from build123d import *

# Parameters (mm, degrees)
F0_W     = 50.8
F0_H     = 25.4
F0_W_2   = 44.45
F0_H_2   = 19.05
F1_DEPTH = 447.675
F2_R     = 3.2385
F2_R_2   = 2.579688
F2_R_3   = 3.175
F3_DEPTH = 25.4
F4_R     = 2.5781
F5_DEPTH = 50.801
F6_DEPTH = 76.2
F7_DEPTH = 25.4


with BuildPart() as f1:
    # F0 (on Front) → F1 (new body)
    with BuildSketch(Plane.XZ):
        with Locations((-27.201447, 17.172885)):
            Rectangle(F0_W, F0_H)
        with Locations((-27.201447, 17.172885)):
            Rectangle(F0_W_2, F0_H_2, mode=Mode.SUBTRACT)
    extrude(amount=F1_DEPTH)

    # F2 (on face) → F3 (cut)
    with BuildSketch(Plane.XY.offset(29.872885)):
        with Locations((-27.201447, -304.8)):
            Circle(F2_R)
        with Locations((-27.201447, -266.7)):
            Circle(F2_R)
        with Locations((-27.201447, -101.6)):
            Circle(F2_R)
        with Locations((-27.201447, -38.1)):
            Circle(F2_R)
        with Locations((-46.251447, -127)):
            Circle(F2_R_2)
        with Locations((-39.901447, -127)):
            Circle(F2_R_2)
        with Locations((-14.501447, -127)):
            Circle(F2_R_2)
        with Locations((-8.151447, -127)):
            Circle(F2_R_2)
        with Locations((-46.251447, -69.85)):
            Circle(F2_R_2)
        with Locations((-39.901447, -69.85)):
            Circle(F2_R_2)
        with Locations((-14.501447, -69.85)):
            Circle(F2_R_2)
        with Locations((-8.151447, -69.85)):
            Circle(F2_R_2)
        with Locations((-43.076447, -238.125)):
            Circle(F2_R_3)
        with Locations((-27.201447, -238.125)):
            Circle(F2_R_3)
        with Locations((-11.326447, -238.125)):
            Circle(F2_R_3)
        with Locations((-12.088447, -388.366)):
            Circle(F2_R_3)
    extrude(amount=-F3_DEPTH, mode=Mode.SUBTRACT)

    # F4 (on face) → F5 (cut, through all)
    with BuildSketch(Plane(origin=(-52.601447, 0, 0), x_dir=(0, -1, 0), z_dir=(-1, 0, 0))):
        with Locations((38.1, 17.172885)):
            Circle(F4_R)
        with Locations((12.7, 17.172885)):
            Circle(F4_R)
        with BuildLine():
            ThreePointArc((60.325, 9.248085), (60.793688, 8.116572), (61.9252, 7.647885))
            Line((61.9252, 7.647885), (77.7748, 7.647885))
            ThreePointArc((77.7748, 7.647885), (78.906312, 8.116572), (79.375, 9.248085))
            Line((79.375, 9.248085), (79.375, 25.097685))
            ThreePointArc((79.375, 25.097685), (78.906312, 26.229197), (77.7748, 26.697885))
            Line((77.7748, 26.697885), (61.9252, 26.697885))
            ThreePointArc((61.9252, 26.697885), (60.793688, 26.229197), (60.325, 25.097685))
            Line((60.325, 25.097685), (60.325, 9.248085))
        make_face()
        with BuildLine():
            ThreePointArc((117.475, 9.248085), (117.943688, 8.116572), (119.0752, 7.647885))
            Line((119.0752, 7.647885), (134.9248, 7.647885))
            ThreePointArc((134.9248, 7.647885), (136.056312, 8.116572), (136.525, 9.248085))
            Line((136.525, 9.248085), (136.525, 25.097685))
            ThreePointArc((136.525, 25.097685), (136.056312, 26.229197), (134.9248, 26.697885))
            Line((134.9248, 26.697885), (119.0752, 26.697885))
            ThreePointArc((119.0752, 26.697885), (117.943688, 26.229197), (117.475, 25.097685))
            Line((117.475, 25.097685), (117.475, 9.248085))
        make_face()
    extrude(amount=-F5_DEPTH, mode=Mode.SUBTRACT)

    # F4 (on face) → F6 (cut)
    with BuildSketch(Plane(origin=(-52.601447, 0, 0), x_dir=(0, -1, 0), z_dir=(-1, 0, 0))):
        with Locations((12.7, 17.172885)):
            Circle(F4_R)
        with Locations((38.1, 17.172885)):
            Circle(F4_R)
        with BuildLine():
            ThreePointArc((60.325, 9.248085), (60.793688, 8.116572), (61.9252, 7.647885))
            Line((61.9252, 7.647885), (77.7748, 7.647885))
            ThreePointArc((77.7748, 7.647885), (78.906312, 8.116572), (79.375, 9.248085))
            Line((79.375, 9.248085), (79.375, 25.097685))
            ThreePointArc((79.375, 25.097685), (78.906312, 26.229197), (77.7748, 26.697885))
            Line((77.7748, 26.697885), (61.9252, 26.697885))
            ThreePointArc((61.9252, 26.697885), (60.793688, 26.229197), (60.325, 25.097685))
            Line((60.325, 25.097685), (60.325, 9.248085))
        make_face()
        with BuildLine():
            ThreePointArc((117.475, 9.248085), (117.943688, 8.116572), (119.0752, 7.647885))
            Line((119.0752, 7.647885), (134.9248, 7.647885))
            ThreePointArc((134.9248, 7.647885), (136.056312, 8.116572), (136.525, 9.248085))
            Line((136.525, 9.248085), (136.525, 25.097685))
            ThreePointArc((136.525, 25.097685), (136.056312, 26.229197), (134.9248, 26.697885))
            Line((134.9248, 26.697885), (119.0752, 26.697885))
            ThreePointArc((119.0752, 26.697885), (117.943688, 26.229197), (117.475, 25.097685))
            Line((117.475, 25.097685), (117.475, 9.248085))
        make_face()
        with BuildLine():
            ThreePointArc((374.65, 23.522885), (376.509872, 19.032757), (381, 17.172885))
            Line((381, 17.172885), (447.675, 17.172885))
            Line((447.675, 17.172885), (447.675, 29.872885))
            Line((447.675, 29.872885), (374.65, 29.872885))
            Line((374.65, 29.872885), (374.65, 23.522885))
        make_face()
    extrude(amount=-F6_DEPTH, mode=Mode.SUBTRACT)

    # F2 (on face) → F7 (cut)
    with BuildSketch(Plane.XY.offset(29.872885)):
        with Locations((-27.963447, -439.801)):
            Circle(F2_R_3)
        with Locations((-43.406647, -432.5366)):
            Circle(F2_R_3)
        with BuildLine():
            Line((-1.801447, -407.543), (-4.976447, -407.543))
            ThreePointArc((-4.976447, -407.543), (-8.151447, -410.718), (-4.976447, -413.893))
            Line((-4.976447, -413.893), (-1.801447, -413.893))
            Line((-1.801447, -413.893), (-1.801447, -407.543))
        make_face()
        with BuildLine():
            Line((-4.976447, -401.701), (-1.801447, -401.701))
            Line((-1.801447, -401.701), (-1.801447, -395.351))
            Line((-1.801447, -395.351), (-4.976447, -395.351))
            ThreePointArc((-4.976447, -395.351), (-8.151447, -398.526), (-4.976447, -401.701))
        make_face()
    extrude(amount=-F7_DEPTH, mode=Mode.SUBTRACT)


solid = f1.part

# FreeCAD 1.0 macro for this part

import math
import FreeCAD as App
import Part
import Sketcher
Q = App.Units.Quantity

doc = App.newDocument("Part")
params = doc.addObject("Spreadsheet::Sheet", "Params")
for row, (alias, value) in enumerate([
    ("sketch1_width", "2 in"),
    ("sketch1_height", "1 in"),
    ("sketch1_width2", "1.75 in"),
    ("sketch1_height2", "0.75 in"),
    ("pad1_length", "17.625 in"),
    ("sketch2_diameter", "0.25 in"),
    ("sketch2_diameter2", "0.255 in"),
    ("sketch2_diameter3", "0.203125 in"),
    ("pocket1_length", "1 in"),
    ("sketch3_diameter", "0.203 in"),
    ("sketch3_radius", "0.063 in"),
    ("sketch3_width", "0.624 in"),
    ("sketch4_radius", "0.25 in"),
    ("sketch4_diameter", "0.203 in"),
    ("sketch4_height", "0.5 in"),
    ("sketch4_radius2", "0.063 in"),
    ("sketch4_width", "0.624 in"),
    ("pocket3_length", "3 in"),
    ("sketch5_diameter", "0.25 in"),
    ("sketch5_width", "0.125 in"),
    ("pocket4_length", "1 in"),
], start=1):
    params.set(f"A{row}", alias)
    params.set(f"B{row}", "=" + value)
    params.setAlias(f"B{row}", alias)

body = doc.addObject("PartDesign::Body", "Body")

# Sketch on XZ plane
sketch1 = body.newObject("Sketcher::SketchObject", "Sketch")
sketch1.AttachmentSupport = (doc.getObject("XZ_Plane"), [""])
sketch1.MapMode = "FlatFace"
sketch1.addGeometry(Part.LineSegment(App.Vector(-53, 30, 0), App.Vector(-53, 4, 0)), False)
sketch1.addGeometry(Part.LineSegment(App.Vector(-53, 4, 0), App.Vector(-2, 4, 0)), False)
sketch1.addGeometry(Part.LineSegment(App.Vector(-2, 4, 0), App.Vector(-2, 30, 0)), False)
sketch1.addGeometry(Part.LineSegment(App.Vector(-2, 30, 0), App.Vector(-53, 30, 0)), False)
sketch1.addGeometry(Part.LineSegment(App.Vector(-5, 8, 0), App.Vector(-49, 8, 0)), False)
sketch1.addGeometry(Part.LineSegment(App.Vector(-49, 8, 0), App.Vector(-49, 27, 0)), False)
sketch1.addGeometry(Part.LineSegment(App.Vector(-49, 27, 0), App.Vector(-5, 27, 0)), False)
sketch1.addGeometry(Part.LineSegment(App.Vector(-5, 27, 0), App.Vector(-5, 8, 0)), False)
sketch1.addConstraint(Sketcher.Constraint("Coincident", 0, 2, 1, 1))
sketch1.addConstraint(Sketcher.Constraint("Coincident", 1, 2, 2, 1))
sketch1.addConstraint(Sketcher.Constraint("Coincident", 2, 2, 3, 1))
sketch1.addConstraint(Sketcher.Constraint("Coincident", 3, 2, 0, 1))
sketch1.addConstraint(Sketcher.Constraint("Coincident", 4, 2, 5, 1))
sketch1.addConstraint(Sketcher.Constraint("Coincident", 5, 2, 6, 1))
sketch1.addConstraint(Sketcher.Constraint("Coincident", 6, 2, 7, 1))
sketch1.addConstraint(Sketcher.Constraint("Coincident", 7, 2, 4, 1))
sketch1.addConstraint(Sketcher.Constraint("Vertical", 0))
sketch1.addConstraint(Sketcher.Constraint("Horizontal", 1))
sketch1.addConstraint(Sketcher.Constraint("Vertical", 2))
sketch1.addConstraint(Sketcher.Constraint("Horizontal", 3))
sketch1.addConstraint(Sketcher.Constraint("Horizontal", 4))
sketch1.addConstraint(Sketcher.Constraint("Vertical", 5))
sketch1.addConstraint(Sketcher.Constraint("Horizontal", 6))
sketch1.addConstraint(Sketcher.Constraint("Vertical", 7))
sketch1.addConstraint(Sketcher.Constraint("DistanceX", 1, 1, 1, 2, Q("2 in")))
sketch1.addConstraint(Sketcher.Constraint("DistanceY", 0, 2, 0, 1, Q("1 in")))
sketch1.addConstraint(Sketcher.Constraint("DistanceX", 4, 2, 4, 1, Q("1.75 in")))
sketch1.addConstraint(Sketcher.Constraint("DistanceY", 5, 1, 5, 2, Q("0.75 in")))
sketch1.addConstraint(Sketcher.Constraint("DistanceX", 0, 2, 4, 2, Q("0.125 in")))
sketch1.addConstraint(Sketcher.Constraint("DistanceY", 0, 2, 4, 2, Q("0.125 in")))
sketch1.addConstraint(Sketcher.Constraint("DistanceX", 0, 2, -1, 1, Q("52.601447 mm")))
sketch1.addConstraint(Sketcher.Constraint("DistanceY", -1, 1, 0, 2, Q("4.472885 mm")))
sketch1.setExpression("Constraints[16]", "Params.sketch1_width")
sketch1.setExpression("Constraints[17]", "Params.sketch1_height")
sketch1.setExpression("Constraints[18]", "Params.sketch1_width2")
sketch1.setExpression("Constraints[19]", "Params.sketch1_height2")
pad1 = body.newObject("PartDesign::Pad", "Pad")
pad1.Profile = sketch1
pad1.setExpression("Length", "Params.pad1_length")

# Sketch on XY plane
sketch2 = body.newObject("Sketcher::SketchObject", "Sketch001")
sketch2.AttachmentSupport = (doc.getObject("XY_Plane"), [""])
sketch2.MapMode = "FlatFace"
sketch2.AttachmentOffset = App.Placement(App.Vector(0, 0, 29.872885), App.Rotation())
sketch2.addGeometry(Part.Circle(App.Vector(-27.2, -304.8, 0), App.Vector(0, 0, 1), 3.2), False)
sketch2.addGeometry(Part.Circle(App.Vector(-27.2, -266.7, 0), App.Vector(0, 0, 1), 3.2), False)
sketch2.addGeometry(Part.Circle(App.Vector(-27.2, -101.6, 0), App.Vector(0, 0, 1), 3.2), False)
sketch2.addGeometry(Part.Circle(App.Vector(-27.2, -38.1, 0), App.Vector(0, 0, 1), 3.2), False)
sketch2.addGeometry(Part.Circle(App.Vector(-46.3, -127, 0), App.Vector(0, 0, 1), 2.6), False)
sketch2.addGeometry(Part.Circle(App.Vector(-39.9, -127, 0), App.Vector(0, 0, 1), 2.6), False)
sketch2.addGeometry(Part.Circle(App.Vector(-14.5, -127, 0), App.Vector(0, 0, 1), 2.6), False)
sketch2.addGeometry(Part.Circle(App.Vector(-8.2, -127, 0), App.Vector(0, 0, 1), 2.6), False)
sketch2.addGeometry(Part.Circle(App.Vector(-46.3, -69.8, 0), App.Vector(0, 0, 1), 2.6), False)
sketch2.addGeometry(Part.Circle(App.Vector(-39.9, -69.8, 0), App.Vector(0, 0, 1), 2.6), False)
sketch2.addGeometry(Part.Circle(App.Vector(-14.5, -69.8, 0), App.Vector(0, 0, 1), 2.6), False)
sketch2.addGeometry(Part.Circle(App.Vector(-8.2, -69.8, 0), App.Vector(0, 0, 1), 2.6), False)
sketch2.addGeometry(Part.Circle(App.Vector(-43.1, -238.1, 0), App.Vector(0, 0, 1), 3.2), False)
sketch2.addGeometry(Part.Circle(App.Vector(-27.2, -238.1, 0), App.Vector(0, 0, 1), 3.2), False)
sketch2.addGeometry(Part.Circle(App.Vector(-11.3, -238.1, 0), App.Vector(0, 0, 1), 3.2), False)
sketch2.addGeometry(Part.Circle(App.Vector(-12.1, -388.4, 0), App.Vector(0, 0, 1), 3.2), False)
sketch2.addConstraint(Sketcher.Constraint("Equal", 0, 1))
sketch2.addConstraint(Sketcher.Constraint("Equal", 1, 2))
sketch2.addConstraint(Sketcher.Constraint("Equal", 2, 3))
sketch2.addConstraint(Sketcher.Constraint("Equal", 4, 5))
sketch2.addConstraint(Sketcher.Constraint("Equal", 5, 6))
sketch2.addConstraint(Sketcher.Constraint("Equal", 6, 7))
sketch2.addConstraint(Sketcher.Constraint("Equal", 7, 8))
sketch2.addConstraint(Sketcher.Constraint("Equal", 8, 9))
sketch2.addConstraint(Sketcher.Constraint("Equal", 9, 10))
sketch2.addConstraint(Sketcher.Constraint("Equal", 10, 11))
sketch2.addConstraint(Sketcher.Constraint("Equal", 12, 13))
sketch2.addConstraint(Sketcher.Constraint("Equal", 13, 14))
sketch2.addConstraint(Sketcher.Constraint("Equal", 14, 15))
sketch2.addConstraint(Sketcher.Constraint("Horizontal", 4, 3, 5, 3))
sketch2.addConstraint(Sketcher.Constraint("Horizontal", 5, 3, 6, 3))
sketch2.addConstraint(Sketcher.Constraint("Horizontal", 6, 3, 7, 3))
sketch2.addConstraint(Sketcher.Constraint("Horizontal", 8, 3, 9, 3))
sketch2.addConstraint(Sketcher.Constraint("Horizontal", 9, 3, 10, 3))
sketch2.addConstraint(Sketcher.Constraint("Horizontal", 10, 3, 11, 3))
sketch2.addConstraint(Sketcher.Constraint("Horizontal", 12, 3, 13, 3))
sketch2.addConstraint(Sketcher.Constraint("Horizontal", 13, 3, 14, 3))
sketch2.addConstraint(Sketcher.Constraint("Vertical", 0, 3, 1, 3))
sketch2.addConstraint(Sketcher.Constraint("Vertical", 1, 3, 2, 3))
sketch2.addConstraint(Sketcher.Constraint("Vertical", 2, 3, 3, 3))
sketch2.addConstraint(Sketcher.Constraint("Vertical", 4, 3, 8, 3))
sketch2.addConstraint(Sketcher.Constraint("Vertical", 5, 3, 9, 3))
sketch2.addConstraint(Sketcher.Constraint("Vertical", 6, 3, 10, 3))
sketch2.addConstraint(Sketcher.Constraint("Vertical", 7, 3, 11, 3))
sketch2.addConstraint(Sketcher.Constraint("Vertical", 3, 3, 13, 3))
sketch2.addConstraint(Sketcher.Constraint("Diameter", 12, Q("0.25 in")))
sketch2.addConstraint(Sketcher.Constraint("Diameter", 0, Q("0.255 in")))
sketch2.addConstraint(Sketcher.Constraint("Diameter", 4, Q("0.203125 in")))
sketch2.addConstraint(Sketcher.Constraint("DistanceY", 0, 3, -1, 1, Q("12 in")))
sketch2.addConstraint(Sketcher.Constraint("DistanceY", 2, 3, -1, 1, Q("4 in")))
sketch2.addConstraint(Sketcher.Constraint("DistanceY", 4, 3, -1, 1, Q("5 in")))
sketch2.addConstraint(Sketcher.Constraint("DistanceY", 1, 3, 3, 3, Q("9 in")))
sketch2.addConstraint(Sketcher.Constraint("DistanceX", 5, 3, 6, 3, Q("1 in")))
sketch2.addConstraint(Sketcher.Constraint("DistanceY", 1, 3, -1, 1, Q("10.5 in")))
sketch2.addConstraint(Sketcher.Constraint("DistanceX", 5, 3, 2, 3, Q("0.5 in")))
sketch2.addConstraint(Sketcher.Constraint("DistanceX", 4, 3, 7, 3, Q("1.5 in")))
sketch2.addConstraint(Sketcher.Constraint("DistanceY", 8, 3, -1, 1, Q("2.75 in")))
sketch2.addConstraint(Sketcher.Constraint("DistanceY", 15, 3, -1, 1, Q("15.29 in")))
sketch2.addConstraint(Sketcher.Constraint("DistanceX", 4, 3, 2, 3, Q("0.75 in")))
sketch2.addConstraint(Sketcher.Constraint("DistanceX", 12, 3, 14, 3, Q("1.25 in")))
sketch2.addConstraint(Sketcher.Constraint("DistanceX", 15, 3, 14, 3, Q("0.03 in")))
sketch2.addConstraint(Sketcher.Constraint("DistanceY", 12, 3, -1, 1, Q("9.375 in")))
sketch2.addConstraint(Sketcher.Constraint("DistanceX", 12, 3, 1, 3, Q("0.625 in")))
sketch2.addConstraint(Sketcher.Constraint("DistanceX", 0, 3, -1, 1, Q("27.201447 mm")))
sketch2.setExpression("Constraints[29]", "Params.sketch2_diameter")
sketch2.setExpression("Constraints[30]", "Params.sketch2_diameter2")
sketch2.setExpression("Constraints[31]", "Params.sketch2_diameter3")
pocket1 = body.newObject("PartDesign::Pocket", "Pocket")
pocket1.Profile = sketch2
pocket1.setExpression("Length", "Params.pocket1_length")

# Sketch on YZ plane
sketch3 = body.newObject("Sketcher::SketchObject", "Sketch002")
sketch3.AttachmentSupport = (doc.getObject("YZ_Plane"), [""])
sketch3.MapMode = "FlatFace"
sketch3.AttachmentOffset = App.Placement(App.Vector(0, 0, -52.601447), App.Rotation())
sketch3.addGeometry(Part.Circle(App.Vector(-38.1, 17.2, 0), App.Vector(0, 0, 1), 2.6), False)
sketch3.addGeometry(Part.Circle(App.Vector(-12.7, 17.2, 0), App.Vector(0, 0, 1), 2.6), False)
sketch3.addGeometry(Part.ArcOfCircle(Part.Circle(App.Vector(-61.9, 9.2, 0), App.Vector(0, 0, 1), 1.6), math.radians(-90), math.radians(0)), False)
sketch3.addGeometry(Part.LineSegment(App.Vector(-61.9, 7.6, 0), App.Vector(-77.8, 7.6, 0)), False)
sketch3.addGeometry(Part.ArcOfCircle(Part.Circle(App.Vector(-77.8, 9.2, 0), App.Vector(0, 0, 1), 1.6), math.radians(180), math.radians(270)), False)
sketch3.addGeometry(Part.LineSegment(App.Vector(-79.4, 9.2, 0), App.Vector(-79.4, 25.1, 0)), False)
sketch3.addGeometry(Part.ArcOfCircle(Part.Circle(App.Vector(-77.8, 25.1, 0), App.Vector(0, 0, 1), 1.6), math.radians(90), math.radians(180)), False)
sketch3.addGeometry(Part.LineSegment(App.Vector(-77.8, 26.7, 0), App.Vector(-61.9, 26.7, 0)), False)
sketch3.addGeometry(Part.ArcOfCircle(Part.Circle(App.Vector(-61.9, 25.1, 0), App.Vector(0, 0, 1), 1.6), math.radians(0), math.radians(90)), False)
sketch3.addGeometry(Part.LineSegment(App.Vector(-60.3, 25.1, 0), App.Vector(-60.3, 9.2, 0)), False)
sketch3.addGeometry(Part.ArcOfCircle(Part.Circle(App.Vector(-119.1, 9.2, 0), App.Vector(0, 0, 1), 1.6), math.radians(-90), math.radians(0)), False)
sketch3.addGeometry(Part.LineSegment(App.Vector(-119.1, 7.6, 0), App.Vector(-134.9, 7.6, 0)), False)
sketch3.addGeometry(Part.ArcOfCircle(Part.Circle(App.Vector(-134.9, 9.2, 0), App.Vector(0, 0, 1), 1.6), math.radians(180), math.radians(270)), False)
sketch3.addGeometry(Part.LineSegment(App.Vector(-136.5, 9.2, 0), App.Vector(-136.5, 25.1, 0)), False)
sketch3.addGeometry(Part.ArcOfCircle(Part.Circle(App.Vector(-134.9, 25.1, 0), App.Vector(0, 0, 1), 1.6), math.radians(90), math.radians(180)), False)
sketch3.addGeometry(Part.LineSegment(App.Vector(-134.9, 26.7, 0), App.Vector(-119.1, 26.7, 0)), False)
sketch3.addGeometry(Part.ArcOfCircle(Part.Circle(App.Vector(-119.1, 25.1, 0), App.Vector(0, 0, 1), 1.6), math.radians(0), math.radians(90)), False)
sketch3.addGeometry(Part.LineSegment(App.Vector(-117.5, 25.1, 0), App.Vector(-117.5, 9.2, 0)), False)
sketch3.addConstraint(Sketcher.Constraint("Tangent", 2, 1, 3, 1))
sketch3.addConstraint(Sketcher.Constraint("Tangent", 3, 2, 4, 2))
sketch3.addConstraint(Sketcher.Constraint("Tangent", 4, 1, 5, 1))
sketch3.addConstraint(Sketcher.Constraint("Tangent", 5, 2, 6, 2))
sketch3.addConstraint(Sketcher.Constraint("Tangent", 6, 1, 7, 1))
sketch3.addConstraint(Sketcher.Constraint("Tangent", 7, 2, 8, 2))
sketch3.addConstraint(Sketcher.Constraint("Tangent", 8, 1, 9, 1))
sketch3.addConstraint(Sketcher.Constraint("Tangent", 9, 2, 2, 2))
sketch3.addConstraint(Sketcher.Constraint("Tangent", 10, 1, 11, 1))
sketch3.addConstraint(Sketcher.Constraint("Tangent", 11, 2, 12, 2))
sketch3.addConstraint(Sketcher.Constraint("Tangent", 12, 1, 13, 1))
sketch3.addConstraint(Sketcher.Constraint("Tangent", 13, 2, 14, 2))
sketch3.addConstraint(Sketcher.Constraint("Tangent", 14, 1, 15, 1))
sketch3.addConstraint(Sketcher.Constraint("Tangent", 15, 2, 16, 2))
sketch3.addConstraint(Sketcher.Constraint("Tangent", 16, 1, 17, 1))
sketch3.addConstraint(Sketcher.Constraint("Tangent", 17, 2, 10, 2))
sketch3.addConstraint(Sketcher.Constraint("Horizontal", 3))
sketch3.addConstraint(Sketcher.Constraint("Vertical", 5))
sketch3.addConstraint(Sketcher.Constraint("Horizontal", 7))
sketch3.addConstraint(Sketcher.Constraint("Vertical", 9))
sketch3.addConstraint(Sketcher.Constraint("Horizontal", 11))
sketch3.addConstraint(Sketcher.Constraint("Vertical", 13))
sketch3.addConstraint(Sketcher.Constraint("Horizontal", 15))
sketch3.addConstraint(Sketcher.Constraint("Vertical", 17))
sketch3.addConstraint(Sketcher.Constraint("Equal", 0, 1))
sketch3.addConstraint(Sketcher.Constraint("Equal", 2, 4))
sketch3.addConstraint(Sketcher.Constraint("Equal", 4, 6))
sketch3.addConstraint(Sketcher.Constraint("Equal", 6, 8))
sketch3.addConstraint(Sketcher.Constraint("Equal", 8, 10))
sketch3.addConstraint(Sketcher.Constraint("Equal", 10, 12))
sketch3.addConstraint(Sketcher.Constraint("Equal", 12, 14))
sketch3.addConstraint(Sketcher.Constraint("Equal", 14, 16))
sketch3.addConstraint(Sketcher.Constraint("Horizontal", 0, 3, 1, 3))
sketch3.addConstraint(Sketcher.Constraint("Horizontal", 4, 3, 10, 3))
sketch3.addConstraint(Sketcher.Constraint("Horizontal", 8, 3, 14, 3))
sketch3.addConstraint(Sketcher.Constraint("Equal", 7, 11))
sketch3.addConstraint(Sketcher.Constraint("Equal", 15, 5))
sketch3.addConstraint(Sketcher.Constraint("Diameter", 0, Q("0.203 in")))
sketch3.addConstraint(Sketcher.Constraint("Radius", 2, Q("0.063 in")))
sketch3.addConstraint(Sketcher.Constraint("DistanceX", 0, 3, 1, 3, Q("1 in")))
sketch3.addConstraint(Sketcher.Constraint("DistanceX", 0, 3, -1, 1, Q("1.5 in")))
sketch3.addConstraint(Sketcher.Constraint("DistanceX", 3, 2, 3, 1, Q("0.624 in")))
sketch3.addConstraint(Sketcher.Constraint("DistanceX", 10, 3, 2, 3, Q("2.25 in")))
sketch3.addConstraint(Sketcher.Constraint("DistanceX", 2, 3, -1, 1, Q("2.438 in")))
sketch3.addConstraint(Sketcher.Constraint("DistanceY", 2, 3, 0, 3, Q("0.312 in")))
sketch3.addConstraint(Sketcher.Constraint("DistanceY", -1, 1, 0, 3, Q("17.172885 mm")))
sketch3.setExpression("Constraints[37]", "Params.sketch3_diameter")
sketch3.setExpression("Constraints[38]", "Params.sketch3_radius")
sketch3.setExpression("Constraints[41]", "Params.sketch3_width")
pocket2 = body.newObject("PartDesign::Pocket", "Pocket001")
pocket2.Profile = sketch3
pocket2.Type = "ThroughAll"
pocket2.Reversed = True

# Sketch on YZ plane
sketch4 = body.newObject("Sketcher::SketchObject", "Sketch003")
sketch4.AttachmentSupport = (doc.getObject("YZ_Plane"), [""])
sketch4.MapMode = "FlatFace"
sketch4.AttachmentOffset = App.Placement(App.Vector(0, 0, -52.601447), App.Rotation())
sketch4.addGeometry(Part.Circle(App.Vector(-12.7, 17.2, 0), App.Vector(0, 0, 1), 2.6), False)
sketch4.addGeometry(Part.Circle(App.Vector(-38.1, 17.2, 0), App.Vector(0, 0, 1), 2.6), False)
sketch4.addGeometry(Part.ArcOfCircle(Part.Circle(App.Vector(-61.9, 9.2, 0), App.Vector(0, 0, 1), 1.6), math.radians(-90), math.radians(0)), False)
sketch4.addGeometry(Part.LineSegment(App.Vector(-61.9, 7.6, 0), App.Vector(-77.8, 7.6, 0)), False)
sketch4.addGeometry(Part.ArcOfCircle(Part.Circle(App.Vector(-77.8, 9.2, 0), App.Vector(0, 0, 1), 1.6), math.radians(180), math.radians(270)), False)
sketch4.addGeometry(Part.LineSegment(App.Vector(-79.4, 9.2, 0), App.Vector(-79.4, 25.1, 0)), False)
sketch4.addGeometry(Part.ArcOfCircle(Part.Circle(App.Vector(-77.8, 25.1, 0), App.Vector(0, 0, 1), 1.6), math.radians(90), math.radians(180)), False)
sketch4.addGeometry(Part.LineSegment(App.Vector(-77.8, 26.7, 0), App.Vector(-61.9, 26.7, 0)), False)
sketch4.addGeometry(Part.ArcOfCircle(Part.Circle(App.Vector(-61.9, 25.1, 0), App.Vector(0, 0, 1), 1.6), math.radians(0), math.radians(90)), False)
sketch4.addGeometry(Part.LineSegment(App.Vector(-60.3, 25.1, 0), App.Vector(-60.3, 9.2, 0)), False)
sketch4.addGeometry(Part.ArcOfCircle(Part.Circle(App.Vector(-119.1, 9.2, 0), App.Vector(0, 0, 1), 1.6), math.radians(-90), math.radians(0)), False)
sketch4.addGeometry(Part.LineSegment(App.Vector(-119.1, 7.6, 0), App.Vector(-134.9, 7.6, 0)), False)
sketch4.addGeometry(Part.ArcOfCircle(Part.Circle(App.Vector(-134.9, 9.2, 0), App.Vector(0, 0, 1), 1.6), math.radians(180), math.radians(270)), False)
sketch4.addGeometry(Part.LineSegment(App.Vector(-136.5, 9.2, 0), App.Vector(-136.5, 25.1, 0)), False)
sketch4.addGeometry(Part.ArcOfCircle(Part.Circle(App.Vector(-134.9, 25.1, 0), App.Vector(0, 0, 1), 1.6), math.radians(90), math.radians(180)), False)
sketch4.addGeometry(Part.LineSegment(App.Vector(-134.9, 26.7, 0), App.Vector(-119.1, 26.7, 0)), False)
sketch4.addGeometry(Part.ArcOfCircle(Part.Circle(App.Vector(-119.1, 25.1, 0), App.Vector(0, 0, 1), 1.6), math.radians(0), math.radians(90)), False)
sketch4.addGeometry(Part.LineSegment(App.Vector(-117.5, 25.1, 0), App.Vector(-117.5, 9.2, 0)), False)
sketch4.addGeometry(Part.ArcOfCircle(Part.Circle(App.Vector(-381, 23.5, 0), App.Vector(0, 0, 1), 6.4), math.radians(-90), math.radians(0)), False)
sketch4.addGeometry(Part.LineSegment(App.Vector(-381, 17.2, 0), App.Vector(-447.7, 17.2, 0)), False)
sketch4.addGeometry(Part.LineSegment(App.Vector(-447.7, 17.2, 0), App.Vector(-447.7, 29.9, 0)), False)
sketch4.addGeometry(Part.LineSegment(App.Vector(-447.7, 29.9, 0), App.Vector(-374.6, 29.9, 0)), False)
sketch4.addGeometry(Part.LineSegment(App.Vector(-374.6, 29.9, 0), App.Vector(-374.6, 23.5, 0)), False)
sketch4.addConstraint(Sketcher.Constraint("Tangent", 2, 1, 3, 1))
sketch4.addConstraint(Sketcher.Constraint("Tangent", 3, 2, 4, 2))
sketch4.addConstraint(Sketcher.Constraint("Tangent", 4, 1, 5, 1))
sketch4.addConstraint(Sketcher.Constraint("Tangent", 5, 2, 6, 2))
sketch4.addConstraint(Sketcher.Constraint("Tangent", 6, 1, 7, 1))
sketch4.addConstraint(Sketcher.Constraint("Tangent", 7, 2, 8, 2))
sketch4.addConstraint(Sketcher.Constraint("Tangent", 8, 1, 9, 1))
sketch4.addConstraint(Sketcher.Constraint("Tangent", 9, 2, 2, 2))
sketch4.addConstraint(Sketcher.Constraint("Tangent", 10, 1, 11, 1))
sketch4.addConstraint(Sketcher.Constraint("Tangent", 11, 2, 12, 2))
sketch4.addConstraint(Sketcher.Constraint("Tangent", 12, 1, 13, 1))
sketch4.addConstraint(Sketcher.Constraint("Tangent", 13, 2, 14, 2))
sketch4.addConstraint(Sketcher.Constraint("Tangent", 14, 1, 15, 1))
sketch4.addConstraint(Sketcher.Constraint("Tangent", 15, 2, 16, 2))
sketch4.addConstraint(Sketcher.Constraint("Tangent", 16, 1, 17, 1))
sketch4.addConstraint(Sketcher.Constraint("Tangent", 17, 2, 10, 2))
sketch4.addConstraint(Sketcher.Constraint("Tangent", 18, 1, 19, 1))
sketch4.addConstraint(Sketcher.Constraint("Coincident", 19, 2, 20, 1))
sketch4.addConstraint(Sketcher.Constraint("Coincident", 20, 2, 21, 1))
sketch4.addConstraint(Sketcher.Constraint("Coincident", 21, 2, 22, 1))
sketch4.addConstraint(Sketcher.Constraint("Tangent", 22, 2, 18, 2))
sketch4.addConstraint(Sketcher.Constraint("Horizontal", 3))
sketch4.addConstraint(Sketcher.Constraint("Vertical", 5))
sketch4.addConstraint(Sketcher.Constraint("Horizontal", 7))
sketch4.addConstraint(Sketcher.Constraint("Vertical", 9))
sketch4.addConstraint(Sketcher.Constraint("Horizontal", 11))
sketch4.addConstraint(Sketcher.Constraint("Vertical", 13))
sketch4.addConstraint(Sketcher.Constraint("Horizontal", 15))
sketch4.addConstraint(Sketcher.Constraint("Vertical", 17))
sketch4.addConstraint(Sketcher.Constraint("Horizontal", 19))
sketch4.addConstraint(Sketcher.Constraint("Vertical", 20))
sketch4.addConstraint(Sketcher.Constraint("Horizontal", 21))
sketch4.addConstraint(Sketcher.Constraint("Vertical", 22))
sketch4.addConstraint(Sketcher.Constraint("Equal", 0, 1))
sketch4.addConstraint(Sketcher.Constraint("Equal", 2, 4))
sketch4.addConstraint(Sketcher.Constraint("Equal", 4, 6))
sketch4.addConstraint(Sketcher.Constraint("Equal", 6, 8))
sketch4.addConstraint(Sketcher.Constraint("Equal", 8, 10))
sketch4.addConstraint(Sketcher.Constraint("Equal", 10, 12))
sketch4.addConstraint(Sketcher.Constraint("Equal", 12, 14))
sketch4.addConstraint(Sketcher.Constraint("Equal", 14, 16))
sketch4.addConstraint(Sketcher.Constraint("Horizontal", 0, 3, 1, 3))
sketch4.addConstraint(Sketcher.Constraint("Horizontal", 4, 3, 10, 3))
sketch4.addConstraint(Sketcher.Constraint("Horizontal", 8, 3, 14, 3))
sketch4.addConstraint(Sketcher.Constraint("Horizontal", 1, 3, 18, 1))
sketch4.addConstraint(Sketcher.Constraint("Equal", 7, 11))
sketch4.addConstraint(Sketcher.Constraint("Equal", 15, 5))
sketch4.addConstraint(Sketcher.Constraint("Radius", 18, Q("0.25 in")))
sketch4.addConstraint(Sketcher.Constraint("Diameter", 0, Q("0.203 in")))
sketch4.addConstraint(Sketcher.Constraint("DistanceY", 20, 1, 20, 2, Q("0.5 in")))
sketch4.addConstraint(Sketcher.Constraint("DistanceX", 18, 3, -1, 1, Q("15 in")))
sketch4.addConstraint(Sketcher.Constraint("Radius", 2, Q("0.063 in")))
sketch4.addConstraint(Sketcher.Constraint("DistanceX", 1, 3, 0, 3, Q("1 in")))
sketch4.addConstraint(Sketcher.Constraint("DistanceX", 0, 3, -1, 1, Q("0.5 in")))
sketch4.addConstraint(Sketcher.Constraint("DistanceX", 3, 2, 3, 1, Q("0.624 in")))
sketch4.addConstraint(Sketcher.Constraint("DistanceX", 19, 2, 19, 1, Q("2.625 in")))
sketch4.addConstraint(Sketcher.Constraint("DistanceX", 10, 3, 2, 3, Q("2.25 in")))
sketch4.addConstraint(Sketcher.Constraint("DistanceX", 19, 2, 13, 2, Q("12.25 in")))
sketch4.addConstraint(Sketcher.Constraint("DistanceY", 2, 3, 1, 3, Q("0.312 in")))
sketch4.addConstraint(Sketcher.Constraint("DistanceY", -1, 1, 0, 3, Q("17.172885 mm")))
sketch4.setExpression("Constraints[47]", "Params.sketch4_radius")
sketch4.setExpression("Constraints[48]", "Params.sketch4_diameter")
sketch4.setExpression("Constraints[49]", "Params.sketch4_height")
sketch4.setExpression("Constraints[51]", "Params.sketch4_radius2")
sketch4.setExpression("Constraints[54]", "Params.sketch4_width")
pocket3 = body.newObject("PartDesign::Pocket", "Pocket002")
pocket3.Profile = sketch4
pocket3.setExpression("Length", "Params.pocket3_length")
pocket3.Reversed = True

# Sketch on XY plane
sketch5 = body.newObject("Sketcher::SketchObject", "Sketch004")
sketch5.AttachmentSupport = (doc.getObject("XY_Plane"), [""])
sketch5.MapMode = "FlatFace"
sketch5.AttachmentOffset = App.Placement(App.Vector(0, 0, 29.872885), App.Rotation())
sketch5.addGeometry(Part.Circle(App.Vector(-28, -439.8, 0), App.Vector(0, 0, 1), 3.2), False)
sketch5.addGeometry(Part.Circle(App.Vector(-43.4, -432.5, 0), App.Vector(0, 0, 1), 3.2), False)
sketch5.addGeometry(Part.LineSegment(App.Vector(-1.8, -407.5, 0), App.Vector(-5, -407.5, 0)), False)
sketch5.addGeometry(Part.ArcOfCircle(Part.Circle(App.Vector(-5, -410.7, 0), App.Vector(0, 0, 1), 3.2), math.radians(90), math.radians(270)), False)
sketch5.addGeometry(Part.LineSegment(App.Vector(-5, -413.9, 0), App.Vector(-1.8, -413.9, 0)), False)
sketch5.addGeometry(Part.LineSegment(App.Vector(-1.8, -413.9, 0), App.Vector(-1.8, -407.5, 0)), False)
sketch5.addGeometry(Part.LineSegment(App.Vector(-5, -401.7, 0), App.Vector(-1.8, -401.7, 0)), False)
sketch5.addGeometry(Part.LineSegment(App.Vector(-1.8, -401.7, 0), App.Vector(-1.8, -395.4, 0)), False)
sketch5.addGeometry(Part.LineSegment(App.Vector(-1.8, -395.4, 0), App.Vector(-5, -395.4, 0)), False)
sketch5.addGeometry(Part.ArcOfCircle(Part.Circle(App.Vector(-5, -398.5, 0), App.Vector(0, 0, 1), 3.2), math.radians(90), math.radians(270)), False)
sketch5.addConstraint(Sketcher.Constraint("Tangent", 2, 2, 3, 1))
sketch5.addConstraint(Sketcher.Constraint("Tangent", 3, 2, 4, 1))
sketch5.addConstraint(Sketcher.Constraint("Coincident", 4, 2, 5, 1))
sketch5.addConstraint(Sketcher.Constraint("Coincident", 5, 2, 2, 1))
sketch5.addConstraint(Sketcher.Constraint("Coincident", 6, 2, 7, 1))
sketch5.addConstraint(Sketcher.Constraint("Coincident", 7, 2, 8, 1))
sketch5.addConstraint(Sketcher.Constraint("Tangent", 8, 2, 9, 1))
sketch5.addConstraint(Sketcher.Constraint("Tangent", 9, 2, 6, 1))
sketch5.addConstraint(Sketcher.Constraint("Horizontal", 2))
sketch5.addConstraint(Sketcher.Constraint("Horizontal", 4))
sketch5.addConstraint(Sketcher.Constraint("Vertical", 5))
sketch5.addConstraint(Sketcher.Constraint("Horizontal", 6))
sketch5.addConstraint(Sketcher.Constraint("Vertical", 7))
sketch5.addConstraint(Sketcher.Constraint("Horizontal", 8))
sketch5.addConstraint(Sketcher.Constraint("Equal", 0, 1))
sketch5.addConstraint(Sketcher.Constraint("Equal", 1, 3))
sketch5.addConstraint(Sketcher.Constraint("Equal", 3, 9))
sketch5.addConstraint(Sketcher.Constraint("Vertical", 3, 3, 9, 3))
sketch5.addConstraint(Sketcher.Constraint("Vertical", 5, 2, 6, 2))
sketch5.addConstraint(Sketcher.Constraint("Diameter", 0, Q("0.25 in")))
sketch5.addConstraint(Sketcher.Constraint("DistanceX", 2, 2, 2, 1, Q("0.125 in")))
sketch5.addConstraint(Sketcher.Constraint("DistanceY", 3, 3, -1, 1, Q("16.17 in")))
sketch5.addConstraint(Sketcher.Constraint("DistanceY", 9, 3, -1, 1, Q("15.69 in")))
sketch5.addConstraint(Sketcher.Constraint("DistanceY", 0, 3, 2, 2, Q("1.27 in")))
sketch5.addConstraint(Sketcher.Constraint("DistanceX", 0, 3, 4, 2, Q("1.03 in")))
sketch5.addConstraint(Sketcher.Constraint("DistanceY", 1, 3, -1, 1, Q("17.029 in")))
sketch5.addConstraint(Sketcher.Constraint("DistanceX", 1, 3, 0, 3, Q("0.608 in")))
sketch5.addConstraint(Sketcher.Constraint("DistanceX", 0, 3, -1, 1, Q("27.963447 mm")))
sketch5.setExpression("Constraints[19]", "Params.sketch5_diameter")
sketch5.setExpression("Constraints[20]", "Params.sketch5_width")
pocket4 = body.newObject("PartDesign::Pocket", "Pocket003")
pocket4.Profile = sketch5
pocket4.setExpression("Length", "Params.pocket4_length")

doc.recompute()
